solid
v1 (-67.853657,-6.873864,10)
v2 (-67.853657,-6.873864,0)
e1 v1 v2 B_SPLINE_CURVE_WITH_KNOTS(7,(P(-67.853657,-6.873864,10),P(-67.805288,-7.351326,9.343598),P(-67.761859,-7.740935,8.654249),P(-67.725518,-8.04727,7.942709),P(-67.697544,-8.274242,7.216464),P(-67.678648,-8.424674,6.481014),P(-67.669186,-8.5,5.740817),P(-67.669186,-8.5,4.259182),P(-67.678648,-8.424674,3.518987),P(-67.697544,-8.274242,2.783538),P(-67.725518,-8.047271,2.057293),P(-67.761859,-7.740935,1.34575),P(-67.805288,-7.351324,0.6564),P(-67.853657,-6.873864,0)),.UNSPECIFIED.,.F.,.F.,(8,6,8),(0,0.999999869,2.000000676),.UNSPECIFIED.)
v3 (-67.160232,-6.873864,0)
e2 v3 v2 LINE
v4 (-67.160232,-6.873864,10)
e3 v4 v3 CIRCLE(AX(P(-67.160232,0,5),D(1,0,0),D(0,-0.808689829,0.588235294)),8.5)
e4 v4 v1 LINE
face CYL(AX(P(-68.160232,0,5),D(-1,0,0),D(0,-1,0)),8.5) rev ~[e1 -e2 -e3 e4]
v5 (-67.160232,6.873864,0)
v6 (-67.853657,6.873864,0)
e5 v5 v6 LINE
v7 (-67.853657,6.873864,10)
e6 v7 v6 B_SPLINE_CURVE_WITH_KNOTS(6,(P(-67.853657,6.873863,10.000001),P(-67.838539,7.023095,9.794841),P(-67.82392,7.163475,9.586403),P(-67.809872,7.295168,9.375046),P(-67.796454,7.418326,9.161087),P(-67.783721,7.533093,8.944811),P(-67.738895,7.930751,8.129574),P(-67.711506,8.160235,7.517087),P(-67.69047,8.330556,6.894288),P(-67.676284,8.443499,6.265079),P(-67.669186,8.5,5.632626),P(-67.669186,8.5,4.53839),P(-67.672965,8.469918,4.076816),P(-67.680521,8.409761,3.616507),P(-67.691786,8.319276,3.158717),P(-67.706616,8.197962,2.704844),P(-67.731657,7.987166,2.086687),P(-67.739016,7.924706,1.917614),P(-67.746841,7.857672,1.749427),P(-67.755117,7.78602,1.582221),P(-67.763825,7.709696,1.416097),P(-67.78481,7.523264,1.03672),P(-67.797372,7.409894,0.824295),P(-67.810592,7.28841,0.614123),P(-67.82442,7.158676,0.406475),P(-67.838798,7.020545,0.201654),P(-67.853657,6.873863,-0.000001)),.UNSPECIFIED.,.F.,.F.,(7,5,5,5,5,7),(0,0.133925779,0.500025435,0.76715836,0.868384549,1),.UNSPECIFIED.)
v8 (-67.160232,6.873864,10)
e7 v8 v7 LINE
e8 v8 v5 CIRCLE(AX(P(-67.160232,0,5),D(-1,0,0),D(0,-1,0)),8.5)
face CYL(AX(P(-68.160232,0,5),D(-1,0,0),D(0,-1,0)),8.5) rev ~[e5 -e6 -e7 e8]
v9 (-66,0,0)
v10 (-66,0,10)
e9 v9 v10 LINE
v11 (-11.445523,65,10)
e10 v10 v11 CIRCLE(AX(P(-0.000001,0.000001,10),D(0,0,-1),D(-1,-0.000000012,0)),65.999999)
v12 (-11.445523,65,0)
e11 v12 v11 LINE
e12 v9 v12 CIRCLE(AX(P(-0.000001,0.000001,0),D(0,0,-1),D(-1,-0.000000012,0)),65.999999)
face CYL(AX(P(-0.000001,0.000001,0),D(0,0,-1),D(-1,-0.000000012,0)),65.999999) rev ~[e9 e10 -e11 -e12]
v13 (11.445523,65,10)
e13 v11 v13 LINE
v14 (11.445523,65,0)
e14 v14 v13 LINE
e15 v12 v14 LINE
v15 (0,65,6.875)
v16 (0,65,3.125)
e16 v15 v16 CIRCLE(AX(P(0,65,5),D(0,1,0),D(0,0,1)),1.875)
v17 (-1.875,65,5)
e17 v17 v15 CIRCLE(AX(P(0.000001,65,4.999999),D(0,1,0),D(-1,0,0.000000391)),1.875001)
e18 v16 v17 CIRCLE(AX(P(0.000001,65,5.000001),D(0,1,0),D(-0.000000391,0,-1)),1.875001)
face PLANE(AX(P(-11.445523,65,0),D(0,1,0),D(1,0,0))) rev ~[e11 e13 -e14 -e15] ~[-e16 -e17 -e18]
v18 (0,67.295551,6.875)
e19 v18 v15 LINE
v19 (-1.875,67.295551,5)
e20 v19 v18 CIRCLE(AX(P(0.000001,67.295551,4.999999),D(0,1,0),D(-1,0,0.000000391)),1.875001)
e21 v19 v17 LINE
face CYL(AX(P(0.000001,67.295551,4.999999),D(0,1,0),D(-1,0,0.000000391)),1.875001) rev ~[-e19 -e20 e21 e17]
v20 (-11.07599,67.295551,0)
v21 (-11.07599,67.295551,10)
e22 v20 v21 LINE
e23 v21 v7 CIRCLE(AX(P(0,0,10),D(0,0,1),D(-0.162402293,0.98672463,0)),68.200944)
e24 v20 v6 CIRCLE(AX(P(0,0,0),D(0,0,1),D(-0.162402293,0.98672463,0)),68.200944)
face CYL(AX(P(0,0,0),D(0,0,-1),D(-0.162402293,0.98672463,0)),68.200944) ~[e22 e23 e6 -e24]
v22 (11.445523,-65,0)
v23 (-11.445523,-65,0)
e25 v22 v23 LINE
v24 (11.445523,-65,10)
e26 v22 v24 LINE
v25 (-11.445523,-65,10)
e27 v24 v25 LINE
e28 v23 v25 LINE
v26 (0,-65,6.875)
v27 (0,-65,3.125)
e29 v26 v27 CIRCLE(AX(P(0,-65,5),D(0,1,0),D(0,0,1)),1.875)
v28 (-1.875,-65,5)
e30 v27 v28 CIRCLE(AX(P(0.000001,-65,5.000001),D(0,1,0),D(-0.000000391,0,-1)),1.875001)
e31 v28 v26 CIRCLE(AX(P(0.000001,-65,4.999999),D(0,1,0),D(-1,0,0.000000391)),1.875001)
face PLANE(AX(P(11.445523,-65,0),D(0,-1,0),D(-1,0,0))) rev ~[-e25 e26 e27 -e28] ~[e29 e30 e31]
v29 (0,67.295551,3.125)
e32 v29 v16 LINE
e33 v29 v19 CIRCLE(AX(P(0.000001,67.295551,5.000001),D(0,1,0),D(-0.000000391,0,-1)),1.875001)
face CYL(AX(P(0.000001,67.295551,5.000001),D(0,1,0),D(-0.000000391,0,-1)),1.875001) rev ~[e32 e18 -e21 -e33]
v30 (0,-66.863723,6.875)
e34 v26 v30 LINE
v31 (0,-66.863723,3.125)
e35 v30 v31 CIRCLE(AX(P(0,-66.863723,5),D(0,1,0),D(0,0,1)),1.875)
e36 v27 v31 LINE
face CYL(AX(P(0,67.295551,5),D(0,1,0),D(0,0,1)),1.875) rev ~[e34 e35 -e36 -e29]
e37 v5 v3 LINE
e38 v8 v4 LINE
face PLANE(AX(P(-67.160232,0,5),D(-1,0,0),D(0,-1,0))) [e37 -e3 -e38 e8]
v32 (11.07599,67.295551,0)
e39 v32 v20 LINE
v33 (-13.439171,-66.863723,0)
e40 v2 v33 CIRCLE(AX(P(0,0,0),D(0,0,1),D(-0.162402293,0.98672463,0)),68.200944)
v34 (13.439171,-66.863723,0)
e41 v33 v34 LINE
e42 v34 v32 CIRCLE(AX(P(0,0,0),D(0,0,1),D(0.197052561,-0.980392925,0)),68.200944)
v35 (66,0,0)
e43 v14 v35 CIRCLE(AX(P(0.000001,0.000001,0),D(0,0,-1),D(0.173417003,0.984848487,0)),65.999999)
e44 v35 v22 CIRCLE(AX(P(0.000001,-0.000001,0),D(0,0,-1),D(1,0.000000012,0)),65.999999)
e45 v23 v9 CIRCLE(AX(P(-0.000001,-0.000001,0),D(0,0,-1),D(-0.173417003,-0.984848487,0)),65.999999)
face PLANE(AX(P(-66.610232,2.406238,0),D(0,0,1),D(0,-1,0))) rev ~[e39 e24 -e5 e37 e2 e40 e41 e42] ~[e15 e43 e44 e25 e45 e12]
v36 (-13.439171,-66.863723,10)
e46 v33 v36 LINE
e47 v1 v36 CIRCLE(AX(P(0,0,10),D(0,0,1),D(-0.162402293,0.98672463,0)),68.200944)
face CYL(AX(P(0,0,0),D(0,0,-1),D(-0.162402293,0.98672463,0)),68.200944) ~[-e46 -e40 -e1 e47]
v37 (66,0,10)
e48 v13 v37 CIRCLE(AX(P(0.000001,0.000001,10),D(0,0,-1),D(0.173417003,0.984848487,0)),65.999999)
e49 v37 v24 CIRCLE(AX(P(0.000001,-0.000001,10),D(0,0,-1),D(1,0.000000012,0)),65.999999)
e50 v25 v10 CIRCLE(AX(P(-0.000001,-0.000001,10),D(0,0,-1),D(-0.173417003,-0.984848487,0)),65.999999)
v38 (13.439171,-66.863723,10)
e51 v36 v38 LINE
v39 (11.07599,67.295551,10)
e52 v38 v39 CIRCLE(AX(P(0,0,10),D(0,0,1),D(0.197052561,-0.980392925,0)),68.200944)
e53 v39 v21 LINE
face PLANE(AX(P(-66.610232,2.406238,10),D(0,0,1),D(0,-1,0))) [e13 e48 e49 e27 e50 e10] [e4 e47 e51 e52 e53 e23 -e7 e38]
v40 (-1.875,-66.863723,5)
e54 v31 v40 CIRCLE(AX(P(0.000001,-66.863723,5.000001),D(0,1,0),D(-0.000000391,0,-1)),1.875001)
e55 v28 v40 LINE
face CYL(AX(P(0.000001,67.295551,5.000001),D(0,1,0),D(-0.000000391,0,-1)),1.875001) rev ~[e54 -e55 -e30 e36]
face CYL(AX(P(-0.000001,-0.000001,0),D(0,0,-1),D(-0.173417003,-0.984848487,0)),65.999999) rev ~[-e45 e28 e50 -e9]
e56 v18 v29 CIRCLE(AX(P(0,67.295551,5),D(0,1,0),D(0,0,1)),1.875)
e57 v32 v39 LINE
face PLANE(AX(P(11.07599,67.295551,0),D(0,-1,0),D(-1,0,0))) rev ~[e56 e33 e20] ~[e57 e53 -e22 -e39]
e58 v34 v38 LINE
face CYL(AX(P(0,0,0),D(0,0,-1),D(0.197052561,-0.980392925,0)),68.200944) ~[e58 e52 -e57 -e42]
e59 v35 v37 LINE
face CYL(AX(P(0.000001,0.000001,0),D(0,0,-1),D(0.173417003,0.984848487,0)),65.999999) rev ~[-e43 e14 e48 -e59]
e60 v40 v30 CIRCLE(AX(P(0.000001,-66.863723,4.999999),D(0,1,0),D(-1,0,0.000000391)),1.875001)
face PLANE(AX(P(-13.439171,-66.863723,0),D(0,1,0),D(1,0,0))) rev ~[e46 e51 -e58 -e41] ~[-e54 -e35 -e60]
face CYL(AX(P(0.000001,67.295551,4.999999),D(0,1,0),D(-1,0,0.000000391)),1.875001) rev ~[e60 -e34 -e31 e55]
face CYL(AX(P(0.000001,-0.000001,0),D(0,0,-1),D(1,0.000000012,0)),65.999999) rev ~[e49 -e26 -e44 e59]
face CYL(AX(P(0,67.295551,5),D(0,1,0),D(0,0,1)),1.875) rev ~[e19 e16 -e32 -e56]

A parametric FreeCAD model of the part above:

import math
import FreeCAD as App
import Part
import Sketcher

doc = App.newDocument("Part")
body = doc.addObject("PartDesign::Body", "Body")

sketch1 = body.newObject("Sketcher::SketchObject", "Sketch")
sketch1.AttachmentSupport = (doc.getObject("XY_Plane"), [""])
sketch1.MapMode = "FlatFace"
sketch1.addGeometry(Part.ArcOfCircle(Part.Circle(App.Vector(0, 0, 0), App.Vector(0, 0, 1), 68), math.radians(-79), math.radians(81)), False)
sketch1.addGeometry(Part.LineSegment(App.Vector(11, 67, 0), App.Vector(-11, 67, 0)), False)
sketch1.addGeometry(Part.ArcOfCircle(Part.Circle(App.Vector(0, 0, 0), App.Vector(0, 0, 1), 68), math.radians(99), math.radians(259)), False)
sketch1.addGeometry(Part.LineSegment(App.Vector(-13, -67, 0), App.Vector(13, -67, 0)), False)
sketch1.addGeometry(Part.ArcOfCircle(Part.Circle(App.Vector(0, 0, 0), App.Vector(0, 0, 1), 66), math.radians(100), math.radians(180)), False)
sketch1.addGeometry(Part.LineSegment(App.Vector(-11, 65, 0), App.Vector(11, 65, 0)), False)
sketch1.addGeometry(Part.ArcOfCircle(Part.Circle(App.Vector(0, 0, 0), App.Vector(0, 0, 1), 66), math.radians(0), math.radians(80)), False)
sketch1.addGeometry(Part.ArcOfCircle(Part.Circle(App.Vector(0, 0, 0), App.Vector(0, 0, 1), 66), math.radians(-80), math.radians(0)), False)
sketch1.addGeometry(Part.LineSegment(App.Vector(11, -65, 0), App.Vector(-11, -65, 0)), False)
sketch1.addGeometry(Part.ArcOfCircle(Part.Circle(App.Vector(0, 0, 0), App.Vector(0, 0, 1), 66), math.radians(180), math.radians(260)), False)
sketch1.addConstraint(Sketcher.Constraint("Coincident", 0, 2, 1, 1))
sketch1.addConstraint(Sketcher.Constraint("Coincident", 1, 2, 2, 1))
sketch1.addConstraint(Sketcher.Constraint("Coincident", 2, 2, 3, 1))
sketch1.addConstraint(Sketcher.Constraint("Coincident", 3, 2, 0, 1))
sketch1.addConstraint(Sketcher.Constraint("Coincident", 4, 1, 5, 1))
sketch1.addConstraint(Sketcher.Constraint("Coincident", 5, 2, 6, 2))
sketch1.addConstraint(Sketcher.Constraint("Tangent", 6, 1, 7, 2))
sketch1.addConstraint(Sketcher.Constraint("Coincident", 7, 1, 8, 1))
sketch1.addConstraint(Sketcher.Constraint("Coincident", 8, 2, 9, 2))
sketch1.addConstraint(Sketcher.Constraint("Tangent", 9, 1, 4, 2))
sketch1.addConstraint(Sketcher.Constraint("Horizontal", 1))
sketch1.addConstraint(Sketcher.Constraint("Horizontal", 3))
sketch1.addConstraint(Sketcher.Constraint("Horizontal", 5))
sketch1.addConstraint(Sketcher.Constraint("Horizontal", 8))
sketch1.addConstraint(Sketcher.Constraint("Coincident", 0, 3, -1, 1))
sketch1.addConstraint(Sketcher.Constraint("Coincident", 2, 3, -1, 1))
sketch1.addConstraint(Sketcher.Constraint("Coincident", 4, 3, -1, 1))
sketch1.addConstraint(Sketcher.Constraint("Coincident", 6, 3, -1, 1))
sketch1.addConstraint(Sketcher.Constraint("Equal", 0, 2))
sketch1.addConstraint(Sketcher.Constraint("Equal", 4, 6))
sketch1.addConstraint(Sketcher.Constraint("Equal", 6, 7))
sketch1.addConstraint(Sketcher.Constraint("Equal", 7, 9))
sketch1.addConstraint(Sketcher.Constraint("PointOnObject", 6, 1, -1))
sketch1.addConstraint(Sketcher.Constraint("PointOnObject", 9, 1, -1))
sketch1.addConstraint(Sketcher.Constraint("Vertical", 5, 2, 7, 1))
sketch1.addConstraint(Sketcher.Constraint("Radius", 4, 65.999999))
sketch1.addConstraint(Sketcher.Constraint("DistanceY", -1, 1, 4, 1, 65.0))
sketch1.addConstraint(Sketcher.Constraint("Radius", 0, 68.200944))
sketch1.addConstraint(Sketcher.Constraint("DistanceX", 1, 2, 1, 1, 22.15198))
sketch1.addConstraint(Sketcher.Constraint("DistanceX", 3, 1, 3, 2, 26.878342))
pad1 = body.newObject("PartDesign::Pad", "Pad")
pad1.Profile = sketch1
pad1.Length = 10

sketch2 = body.newObject("Sketcher::SketchObject", "Sketch001")
sketch2.AttachmentSupport = (doc.getObject("XZ_Plane"), [""])
sketch2.MapMode = "FlatFace"
sketch2.AttachmentOffset = App.Placement(App.Vector(0, 0, -67.295551), App.Rotation())
sketch2.addGeometry(Part.ArcOfCircle(Part.Circle(App.Vector(0, 5, 0), App.Vector(0, 0, 1), 1.9), math.radians(-90), math.radians(90)), False)
sketch2.addGeometry(Part.ArcOfCircle(Part.Circle(App.Vector(0, 5, 0), App.Vector(0, 0, 1), 1.9), math.radians(-180), math.radians(-90)), False)
sketch2.addGeometry(Part.ArcOfCircle(Part.Circle(App.Vector(0, 5, 0), App.Vector(0, 0, 1), 1.9), math.radians(90), math.radians(180)), False)
sketch2.addConstraint(Sketcher.Constraint("Tangent", 0, 1, 1, 2))
sketch2.addConstraint(Sketcher.Constraint("Tangent", 1, 1, 2, 2))
sketch2.addConstraint(Sketcher.Constraint("Tangent", 2, 1, 0, 2))
sketch2.addConstraint(Sketcher.Constraint("PointOnObject", 0, 3, -2))
sketch2.addConstraint(Sketcher.Constraint("PointOnObject", 0, 1, -2))
sketch2.addConstraint(Sketcher.Constraint("PointOnObject", 2, 1, -2))
sketch2.addConstraint(Sketcher.Constraint("Horizontal", 2, 3, 1, 1))
sketch2.addConstraint(Sketcher.Constraint("DistanceY", -1, 1, 0, 3, 5.0))
sketch2.addConstraint(Sketcher.Constraint("Radius", 0, 1.875))
pocket1 = body.newObject("PartDesign::Pocket", "Pocket")
pocket1.Profile = sketch2
pocket1.Length = 170
pocket1.Reversed = True

sketch3 = body.newObject("Sketcher::SketchObject", "Sketch002")
sketch3.AttachmentSupport = (doc.getObject("XY_Plane"), [""])
sketch3.MapMode = "FlatFace"
sketch3.AttachmentOffset = App.Placement(App.Vector(0, 0, 10), App.Rotation())
sketch3.addGeometry(Part.LineSegment(App.Vector(-70.7, 2.4, 0), App.Vector(-70.7, -2.4, 0)), False)
sketch3.addGeometry(Part.LineSegment(App.Vector(-70.7, -2.4, 0), App.Vector(-66.6, -2.4, 0)), False)
sketch3.addGeometry(Part.LineSegment(App.Vector(-66.6, -2.4, 0), App.Vector(-66.6, 2.4, 0)), False)
sketch3.addGeometry(Part.LineSegment(App.Vector(-66.6, 2.4, 0), App.Vector(-70.7, 2.4, 0)), False)
sketch3.addConstraint(Sketcher.Constraint("Coincident", 0, 2, 1, 1))
sketch3.addConstraint(Sketcher.Constraint("Coincident", 1, 2, 2, 1))
sketch3.addConstraint(Sketcher.Constraint("Coincident", 2, 2, 3, 1))
sketch3.addConstraint(Sketcher.Constraint("Coincident", 3, 2, 0, 1))
sketch3.addConstraint(Sketcher.Constraint("Vertical", 0))
sketch3.addConstraint(Sketcher.Constraint("Horizontal", 1))
sketch3.addConstraint(Sketcher.Constraint("Vertical", 2))
sketch3.addConstraint(Sketcher.Constraint("Horizontal", 3))
sketch3.addConstraint(Sketcher.Constraint("DistanceX", 1, 1, 1, 2, 4.053228))
sketch3.addConstraint(Sketcher.Constraint("DistanceY", 0, 2, 0, 1, 4.812476))
sketch3.addConstraint(Sketcher.Constraint("DistanceX", 0, 2, -1, 1, 70.66346))
sketch3.addConstraint(Sketcher.Constraint("DistanceY", 0, 2, -1, 1, 2.406238))
pocket2 = body.newObject("PartDesign::Pocket", "Pocket001")
pocket2.Profile = sketch3
pocket2.Length = 25

sketch4 = body.newObject("Sketcher::SketchObject", "Sketch003")
sketch4.AttachmentSupport = (doc.getObject("YZ_Plane"), [""])
sketch4.MapMode = "FlatFace"
sketch4.AttachmentOffset = App.Placement(App.Vector(0, 0, -66.610232), App.Rotation())
sketch4.addGeometry(Part.LineSegment(App.Vector(2.4, 10, 0), App.Vector(2.4, 0, 0)), False)
sketch4.addGeometry(Part.LineSegment(App.Vector(2.4, 0, 0), App.Vector(-2.4, 0, 0)), False)
sketch4.addGeometry(Part.LineSegment(App.Vector(-2.4, 0, 0), App.Vector(-2.4, 10, 0)), False)
sketch4.addGeometry(Part.LineSegment(App.Vector(-2.4, 10, 0), App.Vector(2.4, 10, 0)), False)
sketch4.addConstraint(Sketcher.Constraint("Coincident", 0, 2, 1, 1))
sketch4.addConstraint(Sketcher.Constraint("Coincident", 1, 2, 2, 1))
sketch4.addConstraint(Sketcher.Constraint("Coincident", 2, 2, 3, 1))
sketch4.addConstraint(Sketcher.Constraint("Coincident", 3, 2, 0, 1))
sketch4.addConstraint(Sketcher.Constraint("Vertical", 0))
sketch4.addConstraint(Sketcher.Constraint("Horizontal", 1))
sketch4.addConstraint(Sketcher.Constraint("Vertical", 2))
sketch4.addConstraint(Sketcher.Constraint("Horizontal", 3))
sketch4.addConstraint(Sketcher.Constraint("Symmetric", 0, 2, 1, 2, -1, 1))
sketch4.addConstraint(Sketcher.Constraint("DistanceY", 0, 2, 0, 1, 10.0))
sketch4.addConstraint(Sketcher.Constraint("DistanceX", 1, 2, 1, 1, 4.812476))
pad2 = body.newObject("PartDesign::Pad", "Pad001")
pad2.Profile = sketch4
pad2.Length = 1.55
pad2.Reversed = True

sketch5 = body.newObject("Sketcher::SketchObject", "Sketch004")
sketch5.AttachmentSupport = (doc.getObject("YZ_Plane"), [""])
sketch5.MapMode = "FlatFace"
sketch5.AttachmentOffset = App.Placement(App.Vector(0, 0, -68.160232), App.Rotation())
sketch5.addGeometry(Part.Circle(App.Vector(0, 5, 0), App.Vector(0, 0, 1), 8), False)
sketch5.addConstraint(Sketcher.Constraint("PointOnObject", 0, 3, -2))
sketch5.addConstraint(Sketcher.Constraint("Diameter", 0, 17.0))
sketch5.addConstraint(Sketcher.Constraint("DistanceY", -1, 1, 0, 3, 5.0))
pocket3 = body.newObject("PartDesign::Pocket", "Pocket002")
pocket3.Profile = sketch5
pocket3.Length = 1
pocket3.Reversed = True

doc.recompute()
